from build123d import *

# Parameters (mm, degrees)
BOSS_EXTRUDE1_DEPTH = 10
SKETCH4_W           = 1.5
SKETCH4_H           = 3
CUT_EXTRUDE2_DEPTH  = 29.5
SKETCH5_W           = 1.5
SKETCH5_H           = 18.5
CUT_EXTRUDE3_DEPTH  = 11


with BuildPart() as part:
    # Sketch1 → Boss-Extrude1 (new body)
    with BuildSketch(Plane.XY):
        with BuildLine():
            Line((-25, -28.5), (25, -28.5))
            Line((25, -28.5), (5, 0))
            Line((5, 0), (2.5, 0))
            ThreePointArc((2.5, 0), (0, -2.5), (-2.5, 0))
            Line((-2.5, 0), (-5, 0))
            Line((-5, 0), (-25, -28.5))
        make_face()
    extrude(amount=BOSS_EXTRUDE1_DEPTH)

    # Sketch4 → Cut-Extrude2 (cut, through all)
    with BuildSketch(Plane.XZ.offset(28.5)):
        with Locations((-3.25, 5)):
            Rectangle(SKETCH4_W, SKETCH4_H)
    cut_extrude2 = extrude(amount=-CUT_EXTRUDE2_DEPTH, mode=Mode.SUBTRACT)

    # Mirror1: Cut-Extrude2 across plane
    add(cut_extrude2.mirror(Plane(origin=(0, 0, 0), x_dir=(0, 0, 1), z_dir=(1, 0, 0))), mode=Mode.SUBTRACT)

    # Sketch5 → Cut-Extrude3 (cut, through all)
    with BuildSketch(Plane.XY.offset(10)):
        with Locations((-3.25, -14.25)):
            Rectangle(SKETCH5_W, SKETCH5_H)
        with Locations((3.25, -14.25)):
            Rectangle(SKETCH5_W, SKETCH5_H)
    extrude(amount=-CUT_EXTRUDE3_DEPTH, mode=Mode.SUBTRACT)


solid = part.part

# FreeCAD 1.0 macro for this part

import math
import FreeCAD as App
import Part
import Sketcher

V = App.Vector
Q = App.Units.Quantity

doc = App.newDocument("Part")
body = doc.addObject("PartDesign::Body", "Body")

# Sketch on XY plane
sketch1 = body.newObject("Sketcher::SketchObject", "Sketch")
sketch1.AttachmentSupport = (doc.getObject("XY_Plane"), [""])
sketch1.MapMode = "FlatFace"
sketch1.addGeometry([
    Part.LineSegment(V(-25, -28.5, 0), V(25, -28.5, 0)),  # 0
    Part.LineSegment(V(25, -28.5, 0), V(5, 0, 0)),  # 1
    Part.LineSegment(V(5, 0, 0), V(2.5, 0, 0)),  # 2
    Part.ArcOfCircle(Part.Circle(V(0, 0, 0), V(0, 0, 1), 2.5), math.radians(180), math.radians(360)),  # 3
    Part.LineSegment(V(-2.5, 0, 0), V(-5, 0, 0)),  # 4
    Part.LineSegment(V(-5, 0, 0), V(-25, -28.5, 0)),  # 5
], False)
sketch1.addConstraint([
    Sketcher.Constraint("Coincident", 0, 2, 1, 1),
    Sketcher.Constraint("Coincident", 1, 2, 2, 1),
    Sketcher.Constraint("Coincident", 2, 2, 3, 2),
    Sketcher.Constraint("Coincident", 3, 1, 4, 1),
    Sketcher.Constraint("Coincident", 4, 2, 5, 1),
    Sketcher.Constraint("Coincident", 5, 2, 0, 1),
    Sketcher.Constraint("Horizontal", 0),
    Sketcher.Constraint("Horizontal", 2),
    Sketcher.Constraint("Horizontal", 4),
    Sketcher.Constraint("Coincident", 3, 3, -1, 1),
    Sketcher.Constraint("Symmetric", 1, 2, 4, 2, -1, 1),
    Sketcher.Constraint("PointOnObject", 1, 2, -1),
    Sketcher.Constraint("Equal", 1, 5),
    Sketcher.Constraint("Radius", 3, Q("2.5 mm")),
    Sketcher.Constraint("DistanceX", 0, 1, 0, 2, Q("50 mm")),
    Sketcher.Constraint("DistanceX", 2, 2, 2, 1, Q("2.5 mm")),
    Sketcher.Constraint("DistanceY", 0, 2, -1, 1, Q("28.5 mm")),
])
pad1 = body.newObject("PartDesign::Pad", "Pad")
pad1.Profile = sketch1
pad1.Length = 10

# Sketch on XZ plane
sketch2 = body.newObject("Sketcher::SketchObject", "Sketch001")
sketch2.AttachmentSupport = (doc.getObject("XZ_Plane"), [""])
sketch2.MapMode = "FlatFace"
sketch2.AttachmentOffset = App.Placement(V(0, 0, 28.5), App.Rotation())
sketch2.addGeometry([
    Part.LineSegment(V(-4, 6.5, 0), V(-4, 3.5, 0)),
    Part.LineSegment(V(-4, 3.5, 0), V(-2.5, 3.5, 0)),
    Part.LineSegment(V(-2.5, 3.5, 0), V(-2.5, 6.5, 0)),
    Part.LineSegment(V(-2.5, 6.5, 0), V(-4, 6.5, 0)),
], False)
sketch2.addConstraint([
    Sketcher.Constraint("Coincident", 0, 2, 1, 1),
    Sketcher.Constraint("Coincident", 1, 2, 2, 1),
    Sketcher.Constraint("Coincident", 2, 2, 3, 1),
    Sketcher.Constraint("Coincident", 3, 2, 0, 1),
    Sketcher.Constraint("Vertical", 0),
    Sketcher.Constraint("Horizontal", 1),
    Sketcher.Constraint("Vertical", 2),
    Sketcher.Constraint("Horizontal", 3),
    Sketcher.Constraint("DistanceY", 0, 2, 0, 1, Q("3 mm")),
    Sketcher.Constraint("DistanceX", 1, 1, 1, 2, Q("1.5 mm")),
    Sketcher.Constraint("DistanceX", 0, 2, -1, 1, Q("4 mm")),
    Sketcher.Constraint("DistanceY", -1, 1, 0, 2, Q("3.5 mm")),
])
pocket1 = body.newObject("PartDesign::Pocket", "Pocket")
pocket1.Profile = sketch2
pocket1.Type = "ThroughAll"
doc.recompute()

mirrored = body.newObject("PartDesign::Mirrored", "Mirrored")
mirrored.Originals = [pocket1]
mirrored.MirrorPlane = (doc.getObject("YZ_Plane"), [""])
body.Tip = mirrored

# Sketch on XY plane
sketch3 = body.newObject("Sketcher::SketchObject", "Sketch002")
sketch3.AttachmentSupport = (doc.getObject("XY_Plane"), [""])
sketch3.MapMode = "FlatFace"
sketch3.AttachmentOffset = App.Placement(V(0, 0, 10), App.Rotation())
sketch3.addGeometry([
    Part.LineSegment(V(-4, -5, 0), V(-4, -23.5, 0)),  # 0
    Part.LineSegment(V(-4, -23.5, 0), V(-2.5, -23.5, 0)),  # 1
    Part.LineSegment(V(-2.5, -23.5, 0), V(-2.5, -5, 0)),  # 2
    Part.LineSegment(V(-2.5, -5, 0), V(-4, -5, 0)),  # 3
    Part.LineSegment(V(2.5, -5, 0), V(2.5, -23.5, 0)),  # 4
    Part.LineSegment(V(2.5, -23.5, 0), V(4, -23.5, 0)),  # 5
    Part.LineSegment(V(4, -23.5, 0), V(4, -5, 0)),  # 6
    Part.LineSegment(V(4, -5, 0), V(2.5, -5, 0)),  # 7
], False)
sketch3.addConstraint([
    Sketcher.Constraint("Coincident", 0, 2, 1, 1),
    Sketcher.Constraint("Coincident", 1, 2, 2, 1),
    Sketcher.Constraint("Coincident", 2, 2, 3, 1),
    Sketcher.Constraint("Coincident", 3, 2, 0, 1),
    Sketcher.Constraint("Coincident", 4, 2, 5, 1),
    Sketcher.Constraint("Coincident", 5, 2, 6, 1),
    Sketcher.Constraint("Coincident", 6, 2, 7, 1),
    Sketcher.Constraint("Coincident", 7, 2, 4, 1),
    Sketcher.Constraint("Vertical", 0),
    Sketcher.Constraint("Horizontal", 1),
    Sketcher.Constraint("Vertical", 2),
    Sketcher.Constraint("Horizontal", 3),
    Sketcher.Constraint("Vertical", 4),
    Sketcher.Constraint("Horizontal", 5),
    Sketcher.Constraint("Vertical", 6),
    Sketcher.Constraint("Horizontal", 7),
    Sketcher.Constraint("Symmetric", 1, 2, 4, 2, -2),
    Sketcher.Constraint("Symmetric", 3, 2, 6, 2, -2),
    Sketcher.Constraint("DistanceX", 1, 1, 1, 2, Q("1.5 mm")),
    Sketcher.Constraint("DistanceY", 0, 2, 0, 1, Q("18.5 mm")),
    Sketcher.Constraint("DistanceX", 0, 2, -1, 1, Q("4 mm")),
    Sketcher.Constraint("DistanceY", 2, 2, -1, 1, Q("5 mm")),
])
pocket2 = body.newObject("PartDesign::Pocket", "Pocket001")
pocket2.Profile = sketch3
pocket2.Type = "ThroughAll"

doc.recompute()
